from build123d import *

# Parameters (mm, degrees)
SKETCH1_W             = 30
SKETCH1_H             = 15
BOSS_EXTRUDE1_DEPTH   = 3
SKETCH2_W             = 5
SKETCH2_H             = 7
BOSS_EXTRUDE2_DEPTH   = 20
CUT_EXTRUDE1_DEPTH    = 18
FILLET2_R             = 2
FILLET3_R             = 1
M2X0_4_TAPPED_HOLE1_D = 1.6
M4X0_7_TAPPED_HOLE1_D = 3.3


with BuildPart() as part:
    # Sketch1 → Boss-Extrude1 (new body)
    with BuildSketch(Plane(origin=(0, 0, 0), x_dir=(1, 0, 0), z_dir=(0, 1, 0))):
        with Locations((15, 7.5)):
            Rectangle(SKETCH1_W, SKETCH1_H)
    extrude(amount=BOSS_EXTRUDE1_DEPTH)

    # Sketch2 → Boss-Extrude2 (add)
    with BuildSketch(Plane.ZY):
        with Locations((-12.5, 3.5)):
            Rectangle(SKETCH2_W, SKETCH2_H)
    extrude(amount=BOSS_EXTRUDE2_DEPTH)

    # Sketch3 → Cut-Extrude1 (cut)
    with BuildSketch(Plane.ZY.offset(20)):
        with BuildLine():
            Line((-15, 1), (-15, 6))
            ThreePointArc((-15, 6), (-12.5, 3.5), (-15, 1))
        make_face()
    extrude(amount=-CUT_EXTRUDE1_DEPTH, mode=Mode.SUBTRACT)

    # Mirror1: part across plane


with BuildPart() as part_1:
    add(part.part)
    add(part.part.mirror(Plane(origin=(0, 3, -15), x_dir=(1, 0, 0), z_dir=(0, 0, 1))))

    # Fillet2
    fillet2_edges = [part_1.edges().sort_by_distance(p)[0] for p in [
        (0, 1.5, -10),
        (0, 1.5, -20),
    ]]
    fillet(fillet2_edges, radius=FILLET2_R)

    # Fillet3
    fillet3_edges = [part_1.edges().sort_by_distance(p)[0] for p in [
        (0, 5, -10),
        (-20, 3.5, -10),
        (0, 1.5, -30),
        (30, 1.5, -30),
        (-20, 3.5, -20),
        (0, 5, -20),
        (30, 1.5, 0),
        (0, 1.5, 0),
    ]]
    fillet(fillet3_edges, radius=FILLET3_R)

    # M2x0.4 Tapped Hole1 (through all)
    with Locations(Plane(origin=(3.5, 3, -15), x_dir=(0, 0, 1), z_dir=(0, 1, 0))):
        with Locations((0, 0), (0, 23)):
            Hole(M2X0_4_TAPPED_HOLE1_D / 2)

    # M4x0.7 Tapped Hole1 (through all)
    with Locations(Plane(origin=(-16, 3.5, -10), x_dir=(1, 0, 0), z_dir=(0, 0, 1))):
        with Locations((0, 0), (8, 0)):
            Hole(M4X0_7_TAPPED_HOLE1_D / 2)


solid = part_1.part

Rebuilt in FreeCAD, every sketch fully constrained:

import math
import FreeCAD as App
import Part
import Sketcher
Q = App.Units.Quantity


def edges_at(feature, points):
    """Names of the edges that pass closest to the given points."""
    edges = feature.Shape.Edges
    near = lambda p: min(range(len(edges)), key=lambda i: edges[i].distToShape(Part.Vertex(*p))[0])
    return sorted({f"Edge{near(p) + 1}" for p in points})


def add_polygon(sketch, points):
    """Adds a closed chain of lines whose ends are joined by coincident constraints."""
    first, n = sketch.GeometryCount, len(points)
    for a, b in zip(points, points[1:] + points[:1]):
        sketch.addGeometry(Part.LineSegment(App.Vector(*a, 0), App.Vector(*b, 0)), False)
    for i in range(n):
        sketch.addConstraint(Sketcher.Constraint("Coincident", first + i, 2, first + (i + 1) % n, 1))

doc = App.newDocument("Part")
body = doc.addObject("PartDesign::Body", "Body")

# Sketch on XZ plane
sketch1 = doc.addObject("Sketcher::SketchObject", "Sketch")
body.addObject(sketch1)
sketch1.AttachmentSupport = (doc.XZ_Plane, [""])
sketch1.MapMode = "FlatFace"
add_polygon(sketch1, [(0, -15), (0, 0), (30, 0), (30, -15)])  # lines 0-3
sketch1.addConstraint([
    Sketcher.Constraint("Vertical", 0),
    Sketcher.Constraint("Horizontal", 1),
    Sketcher.Constraint("Vertical", 2),
    Sketcher.Constraint("Horizontal", 3),
    Sketcher.Constraint("Coincident", 0, 2, -1, 1),
    Sketcher.Constraint("DistanceX", 1, 1, 1, 2, Q("30 mm")),
    Sketcher.Constraint("DistanceY", 0, 1, 0, 2, Q("15 mm")),
])
pad1 = doc.addObject("PartDesign::Pad", "Pad")
body.addObject(pad1)
pad1.Profile = sketch1
pad1.Length = 3
pad1.Reversed = True

# Sketch on YZ plane
sketch2 = doc.addObject("Sketcher::SketchObject", "Sketch001")
body.addObject(sketch2)
sketch2.AttachmentSupport = (doc.YZ_Plane, [""])
sketch2.MapMode = "FlatFace"
add_polygon(sketch2, [(7, -15), (0, -15), (0, -10), (7, -10)])  # lines 0-3
sketch2.addConstraint([
    Sketcher.Constraint("Horizontal", 0),
    Sketcher.Constraint("Vertical", 1),
    Sketcher.Constraint("Horizontal", 2),
    Sketcher.Constraint("Vertical", 3),
    Sketcher.Constraint("PointOnObject", 0, 2, -2),
    Sketcher.Constraint("DistanceX", 0, 2, 0, 1, Q("7 mm")),
    Sketcher.Constraint("DistanceY", 1, 1, 1, 2, Q("5 mm")),
    Sketcher.Constraint("DistanceY", 0, 2, -1, 1, Q("15 mm")),
])
pad2 = doc.addObject("PartDesign::Pad", "Pad001")
body.addObject(pad2)
pad2.Profile = sketch2
pad2.Length = 20
pad2.Reversed = True

# Sketch on YZ plane
sketch3 = doc.addObject("Sketcher::SketchObject", "Sketch002")
body.addObject(sketch3)
sketch3.AttachmentSupport = (doc.YZ_Plane, [""])
sketch3.MapMode = "FlatFace"
sketch3.AttachmentOffset = App.Placement(App.Vector(0, 0, -20), App.Rotation())
sketch3.addGeometry([
    Part.LineSegment(App.Vector(6, -15, 0), App.Vector(1, -15, 0)),
    Part.ArcOfCircle(Part.Circle(App.Vector(3.5, -15, 0), App.Vector(0, 0, 1), 2.5), math.radians(0), math.radians(180)),
], False)
sketch3.addConstraint([
    Sketcher.Constraint("Coincident", 0, 1, 1, 1),
    Sketcher.Constraint("Coincident", 1, 2, 0, 2),
    Sketcher.Constraint("Horizontal", 0),
    Sketcher.Constraint("Horizontal", 1, 3, 0, 1),
    Sketcher.Constraint("Radius", 1, Q("2.5 mm")),
    Sketcher.Constraint("DistanceY", 1, 3, -1, 1, Q("15 mm")),
    Sketcher.Constraint("DistanceX", -1, 1, 0, 1, Q("6 mm")),
])
pocket1 = doc.addObject("PartDesign::Pocket", "Pocket")
body.addObject(pocket1)
pocket1.Profile = sketch3
pocket1.Length = 18
pocket1.Reversed = True
body2 = doc.addObject("PartDesign::Body", "Body001")
doc.recompute()

body2.BaseFeature = body
doc.recompute()

mirroring = doc.addObject("Part::Mirroring", "Mirroring")
mirroring.Source = body
mirroring.Base = App.Vector(0, 3, -15)
mirroring.Normal = App.Vector(0, 0, 1)
body3 = doc.addObject("PartDesign::Body", "Body002")
body3.BaseFeature = mirroring
boolean = doc.addObject("PartDesign::Boolean", "Boolean")
body2.addObject(boolean)
boolean.Type = "Fuse"
boolean.addObjects([body3])
doc.recompute()

fillet = doc.addObject("PartDesign::Fillet", "Fillet")
body2.addObject(fillet)
fillet.Base = (boolean, edges_at(boolean, [(0, 1.5, -10), (0, 1.5, -20)]))
fillet.Radius = 2
doc.recompute()

fillet2 = doc.addObject("PartDesign::Fillet", "Fillet001")
body2.addObject(fillet2)
fillet2.Base = (fillet, edges_at(fillet, [
    (0, 5, -10),
    (-20, 3.5, -10),
    (0, 1.5, -30),
    (30, 1.5, -30),
    (-20, 3.5, -20),
    (0, 5, -20),
    (30, 1.5, 0),
    (0, 1.5, 0),
]))
fillet2.Radius = 1

# Sketch on XZ plane
sketch4 = doc.addObject("Sketcher::SketchObject", "Sketch003")
body2.addObject(sketch4)
sketch4.AttachmentSupport = (doc.getObject("XZ_Plane001"), [""])
sketch4.MapMode = "FlatFace"
sketch4.AttachmentOffset = App.Placement(App.Vector(0, 0, -3), App.Rotation())
sketch4.addGeometry([
    Part.Circle(App.Vector(3.5, -15, 0), App.Vector(0, 0, 1), 0.8),
    Part.Circle(App.Vector(26.5, -15, 0), App.Vector(0, 0, 1), 0.8),
], False)
sketch4.addConstraint([
    Sketcher.Constraint("Equal", 0, 1),
    Sketcher.Constraint("Horizontal", 0, 3, 1, 3),
    Sketcher.Constraint("Diameter", 0, Q("1.6 mm")),
    Sketcher.Constraint("DistanceY", 0, 3, -1, 1, Q("15 mm")),
    Sketcher.Constraint("DistanceX", 0, 3, 1, 3, Q("23 mm")),
    Sketcher.Constraint("DistanceX", -1, 1, 0, 3, Q("3.5 mm")),
])
doc.recompute()
hole = doc.addObject("PartDesign::Hole", "Hole")
body2.addObject(hole)
hole.Profile = sketch4
hole.ThreadType = "None"
hole.Diameter = 1.6
hole.DepthType = "ThroughAll"
hole.Reversed = True

# Sketch on XY plane
sketch5 = doc.addObject("Sketcher::SketchObject", "Sketch004")
body2.addObject(sketch5)
sketch5.AttachmentSupport = (doc.getObject("XY_Plane001"), [""])
sketch5.MapMode = "FlatFace"
sketch5.AttachmentOffset = App.Placement(App.Vector(0, 0, -10), App.Rotation())
sketch5.addGeometry([
    Part.Circle(App.Vector(-16, 3.5, 0), App.Vector(0, 0, 1), 1.65),
    Part.Circle(App.Vector(-8, 3.5, 0), App.Vector(0, 0, 1), 1.65),
], False)
sketch5.addConstraint([
    Sketcher.Constraint("Equal", 0, 1),
    Sketcher.Constraint("Horizontal", 0, 3, 1, 3),
    Sketcher.Constraint("Diameter", 0, Q("3.3 mm")),
    Sketcher.Constraint("DistanceX", 0, 3, -1, 1, Q("16 mm")),
    Sketcher.Constraint("DistanceX", 1, 3, -1, 1, Q("8 mm")),
    Sketcher.Constraint("DistanceY", -1, 1, 0, 3, Q("3.5 mm")),
])
doc.recompute()
hole2 = doc.addObject("PartDesign::Hole", "Hole001")
body2.addObject(hole2)
hole2.Profile = sketch5
hole2.ThreadType = "None"
hole2.Diameter = 3.3
hole2.DepthType = "ThroughAll"
mirroring.Visibility = False

doc.recompute()
